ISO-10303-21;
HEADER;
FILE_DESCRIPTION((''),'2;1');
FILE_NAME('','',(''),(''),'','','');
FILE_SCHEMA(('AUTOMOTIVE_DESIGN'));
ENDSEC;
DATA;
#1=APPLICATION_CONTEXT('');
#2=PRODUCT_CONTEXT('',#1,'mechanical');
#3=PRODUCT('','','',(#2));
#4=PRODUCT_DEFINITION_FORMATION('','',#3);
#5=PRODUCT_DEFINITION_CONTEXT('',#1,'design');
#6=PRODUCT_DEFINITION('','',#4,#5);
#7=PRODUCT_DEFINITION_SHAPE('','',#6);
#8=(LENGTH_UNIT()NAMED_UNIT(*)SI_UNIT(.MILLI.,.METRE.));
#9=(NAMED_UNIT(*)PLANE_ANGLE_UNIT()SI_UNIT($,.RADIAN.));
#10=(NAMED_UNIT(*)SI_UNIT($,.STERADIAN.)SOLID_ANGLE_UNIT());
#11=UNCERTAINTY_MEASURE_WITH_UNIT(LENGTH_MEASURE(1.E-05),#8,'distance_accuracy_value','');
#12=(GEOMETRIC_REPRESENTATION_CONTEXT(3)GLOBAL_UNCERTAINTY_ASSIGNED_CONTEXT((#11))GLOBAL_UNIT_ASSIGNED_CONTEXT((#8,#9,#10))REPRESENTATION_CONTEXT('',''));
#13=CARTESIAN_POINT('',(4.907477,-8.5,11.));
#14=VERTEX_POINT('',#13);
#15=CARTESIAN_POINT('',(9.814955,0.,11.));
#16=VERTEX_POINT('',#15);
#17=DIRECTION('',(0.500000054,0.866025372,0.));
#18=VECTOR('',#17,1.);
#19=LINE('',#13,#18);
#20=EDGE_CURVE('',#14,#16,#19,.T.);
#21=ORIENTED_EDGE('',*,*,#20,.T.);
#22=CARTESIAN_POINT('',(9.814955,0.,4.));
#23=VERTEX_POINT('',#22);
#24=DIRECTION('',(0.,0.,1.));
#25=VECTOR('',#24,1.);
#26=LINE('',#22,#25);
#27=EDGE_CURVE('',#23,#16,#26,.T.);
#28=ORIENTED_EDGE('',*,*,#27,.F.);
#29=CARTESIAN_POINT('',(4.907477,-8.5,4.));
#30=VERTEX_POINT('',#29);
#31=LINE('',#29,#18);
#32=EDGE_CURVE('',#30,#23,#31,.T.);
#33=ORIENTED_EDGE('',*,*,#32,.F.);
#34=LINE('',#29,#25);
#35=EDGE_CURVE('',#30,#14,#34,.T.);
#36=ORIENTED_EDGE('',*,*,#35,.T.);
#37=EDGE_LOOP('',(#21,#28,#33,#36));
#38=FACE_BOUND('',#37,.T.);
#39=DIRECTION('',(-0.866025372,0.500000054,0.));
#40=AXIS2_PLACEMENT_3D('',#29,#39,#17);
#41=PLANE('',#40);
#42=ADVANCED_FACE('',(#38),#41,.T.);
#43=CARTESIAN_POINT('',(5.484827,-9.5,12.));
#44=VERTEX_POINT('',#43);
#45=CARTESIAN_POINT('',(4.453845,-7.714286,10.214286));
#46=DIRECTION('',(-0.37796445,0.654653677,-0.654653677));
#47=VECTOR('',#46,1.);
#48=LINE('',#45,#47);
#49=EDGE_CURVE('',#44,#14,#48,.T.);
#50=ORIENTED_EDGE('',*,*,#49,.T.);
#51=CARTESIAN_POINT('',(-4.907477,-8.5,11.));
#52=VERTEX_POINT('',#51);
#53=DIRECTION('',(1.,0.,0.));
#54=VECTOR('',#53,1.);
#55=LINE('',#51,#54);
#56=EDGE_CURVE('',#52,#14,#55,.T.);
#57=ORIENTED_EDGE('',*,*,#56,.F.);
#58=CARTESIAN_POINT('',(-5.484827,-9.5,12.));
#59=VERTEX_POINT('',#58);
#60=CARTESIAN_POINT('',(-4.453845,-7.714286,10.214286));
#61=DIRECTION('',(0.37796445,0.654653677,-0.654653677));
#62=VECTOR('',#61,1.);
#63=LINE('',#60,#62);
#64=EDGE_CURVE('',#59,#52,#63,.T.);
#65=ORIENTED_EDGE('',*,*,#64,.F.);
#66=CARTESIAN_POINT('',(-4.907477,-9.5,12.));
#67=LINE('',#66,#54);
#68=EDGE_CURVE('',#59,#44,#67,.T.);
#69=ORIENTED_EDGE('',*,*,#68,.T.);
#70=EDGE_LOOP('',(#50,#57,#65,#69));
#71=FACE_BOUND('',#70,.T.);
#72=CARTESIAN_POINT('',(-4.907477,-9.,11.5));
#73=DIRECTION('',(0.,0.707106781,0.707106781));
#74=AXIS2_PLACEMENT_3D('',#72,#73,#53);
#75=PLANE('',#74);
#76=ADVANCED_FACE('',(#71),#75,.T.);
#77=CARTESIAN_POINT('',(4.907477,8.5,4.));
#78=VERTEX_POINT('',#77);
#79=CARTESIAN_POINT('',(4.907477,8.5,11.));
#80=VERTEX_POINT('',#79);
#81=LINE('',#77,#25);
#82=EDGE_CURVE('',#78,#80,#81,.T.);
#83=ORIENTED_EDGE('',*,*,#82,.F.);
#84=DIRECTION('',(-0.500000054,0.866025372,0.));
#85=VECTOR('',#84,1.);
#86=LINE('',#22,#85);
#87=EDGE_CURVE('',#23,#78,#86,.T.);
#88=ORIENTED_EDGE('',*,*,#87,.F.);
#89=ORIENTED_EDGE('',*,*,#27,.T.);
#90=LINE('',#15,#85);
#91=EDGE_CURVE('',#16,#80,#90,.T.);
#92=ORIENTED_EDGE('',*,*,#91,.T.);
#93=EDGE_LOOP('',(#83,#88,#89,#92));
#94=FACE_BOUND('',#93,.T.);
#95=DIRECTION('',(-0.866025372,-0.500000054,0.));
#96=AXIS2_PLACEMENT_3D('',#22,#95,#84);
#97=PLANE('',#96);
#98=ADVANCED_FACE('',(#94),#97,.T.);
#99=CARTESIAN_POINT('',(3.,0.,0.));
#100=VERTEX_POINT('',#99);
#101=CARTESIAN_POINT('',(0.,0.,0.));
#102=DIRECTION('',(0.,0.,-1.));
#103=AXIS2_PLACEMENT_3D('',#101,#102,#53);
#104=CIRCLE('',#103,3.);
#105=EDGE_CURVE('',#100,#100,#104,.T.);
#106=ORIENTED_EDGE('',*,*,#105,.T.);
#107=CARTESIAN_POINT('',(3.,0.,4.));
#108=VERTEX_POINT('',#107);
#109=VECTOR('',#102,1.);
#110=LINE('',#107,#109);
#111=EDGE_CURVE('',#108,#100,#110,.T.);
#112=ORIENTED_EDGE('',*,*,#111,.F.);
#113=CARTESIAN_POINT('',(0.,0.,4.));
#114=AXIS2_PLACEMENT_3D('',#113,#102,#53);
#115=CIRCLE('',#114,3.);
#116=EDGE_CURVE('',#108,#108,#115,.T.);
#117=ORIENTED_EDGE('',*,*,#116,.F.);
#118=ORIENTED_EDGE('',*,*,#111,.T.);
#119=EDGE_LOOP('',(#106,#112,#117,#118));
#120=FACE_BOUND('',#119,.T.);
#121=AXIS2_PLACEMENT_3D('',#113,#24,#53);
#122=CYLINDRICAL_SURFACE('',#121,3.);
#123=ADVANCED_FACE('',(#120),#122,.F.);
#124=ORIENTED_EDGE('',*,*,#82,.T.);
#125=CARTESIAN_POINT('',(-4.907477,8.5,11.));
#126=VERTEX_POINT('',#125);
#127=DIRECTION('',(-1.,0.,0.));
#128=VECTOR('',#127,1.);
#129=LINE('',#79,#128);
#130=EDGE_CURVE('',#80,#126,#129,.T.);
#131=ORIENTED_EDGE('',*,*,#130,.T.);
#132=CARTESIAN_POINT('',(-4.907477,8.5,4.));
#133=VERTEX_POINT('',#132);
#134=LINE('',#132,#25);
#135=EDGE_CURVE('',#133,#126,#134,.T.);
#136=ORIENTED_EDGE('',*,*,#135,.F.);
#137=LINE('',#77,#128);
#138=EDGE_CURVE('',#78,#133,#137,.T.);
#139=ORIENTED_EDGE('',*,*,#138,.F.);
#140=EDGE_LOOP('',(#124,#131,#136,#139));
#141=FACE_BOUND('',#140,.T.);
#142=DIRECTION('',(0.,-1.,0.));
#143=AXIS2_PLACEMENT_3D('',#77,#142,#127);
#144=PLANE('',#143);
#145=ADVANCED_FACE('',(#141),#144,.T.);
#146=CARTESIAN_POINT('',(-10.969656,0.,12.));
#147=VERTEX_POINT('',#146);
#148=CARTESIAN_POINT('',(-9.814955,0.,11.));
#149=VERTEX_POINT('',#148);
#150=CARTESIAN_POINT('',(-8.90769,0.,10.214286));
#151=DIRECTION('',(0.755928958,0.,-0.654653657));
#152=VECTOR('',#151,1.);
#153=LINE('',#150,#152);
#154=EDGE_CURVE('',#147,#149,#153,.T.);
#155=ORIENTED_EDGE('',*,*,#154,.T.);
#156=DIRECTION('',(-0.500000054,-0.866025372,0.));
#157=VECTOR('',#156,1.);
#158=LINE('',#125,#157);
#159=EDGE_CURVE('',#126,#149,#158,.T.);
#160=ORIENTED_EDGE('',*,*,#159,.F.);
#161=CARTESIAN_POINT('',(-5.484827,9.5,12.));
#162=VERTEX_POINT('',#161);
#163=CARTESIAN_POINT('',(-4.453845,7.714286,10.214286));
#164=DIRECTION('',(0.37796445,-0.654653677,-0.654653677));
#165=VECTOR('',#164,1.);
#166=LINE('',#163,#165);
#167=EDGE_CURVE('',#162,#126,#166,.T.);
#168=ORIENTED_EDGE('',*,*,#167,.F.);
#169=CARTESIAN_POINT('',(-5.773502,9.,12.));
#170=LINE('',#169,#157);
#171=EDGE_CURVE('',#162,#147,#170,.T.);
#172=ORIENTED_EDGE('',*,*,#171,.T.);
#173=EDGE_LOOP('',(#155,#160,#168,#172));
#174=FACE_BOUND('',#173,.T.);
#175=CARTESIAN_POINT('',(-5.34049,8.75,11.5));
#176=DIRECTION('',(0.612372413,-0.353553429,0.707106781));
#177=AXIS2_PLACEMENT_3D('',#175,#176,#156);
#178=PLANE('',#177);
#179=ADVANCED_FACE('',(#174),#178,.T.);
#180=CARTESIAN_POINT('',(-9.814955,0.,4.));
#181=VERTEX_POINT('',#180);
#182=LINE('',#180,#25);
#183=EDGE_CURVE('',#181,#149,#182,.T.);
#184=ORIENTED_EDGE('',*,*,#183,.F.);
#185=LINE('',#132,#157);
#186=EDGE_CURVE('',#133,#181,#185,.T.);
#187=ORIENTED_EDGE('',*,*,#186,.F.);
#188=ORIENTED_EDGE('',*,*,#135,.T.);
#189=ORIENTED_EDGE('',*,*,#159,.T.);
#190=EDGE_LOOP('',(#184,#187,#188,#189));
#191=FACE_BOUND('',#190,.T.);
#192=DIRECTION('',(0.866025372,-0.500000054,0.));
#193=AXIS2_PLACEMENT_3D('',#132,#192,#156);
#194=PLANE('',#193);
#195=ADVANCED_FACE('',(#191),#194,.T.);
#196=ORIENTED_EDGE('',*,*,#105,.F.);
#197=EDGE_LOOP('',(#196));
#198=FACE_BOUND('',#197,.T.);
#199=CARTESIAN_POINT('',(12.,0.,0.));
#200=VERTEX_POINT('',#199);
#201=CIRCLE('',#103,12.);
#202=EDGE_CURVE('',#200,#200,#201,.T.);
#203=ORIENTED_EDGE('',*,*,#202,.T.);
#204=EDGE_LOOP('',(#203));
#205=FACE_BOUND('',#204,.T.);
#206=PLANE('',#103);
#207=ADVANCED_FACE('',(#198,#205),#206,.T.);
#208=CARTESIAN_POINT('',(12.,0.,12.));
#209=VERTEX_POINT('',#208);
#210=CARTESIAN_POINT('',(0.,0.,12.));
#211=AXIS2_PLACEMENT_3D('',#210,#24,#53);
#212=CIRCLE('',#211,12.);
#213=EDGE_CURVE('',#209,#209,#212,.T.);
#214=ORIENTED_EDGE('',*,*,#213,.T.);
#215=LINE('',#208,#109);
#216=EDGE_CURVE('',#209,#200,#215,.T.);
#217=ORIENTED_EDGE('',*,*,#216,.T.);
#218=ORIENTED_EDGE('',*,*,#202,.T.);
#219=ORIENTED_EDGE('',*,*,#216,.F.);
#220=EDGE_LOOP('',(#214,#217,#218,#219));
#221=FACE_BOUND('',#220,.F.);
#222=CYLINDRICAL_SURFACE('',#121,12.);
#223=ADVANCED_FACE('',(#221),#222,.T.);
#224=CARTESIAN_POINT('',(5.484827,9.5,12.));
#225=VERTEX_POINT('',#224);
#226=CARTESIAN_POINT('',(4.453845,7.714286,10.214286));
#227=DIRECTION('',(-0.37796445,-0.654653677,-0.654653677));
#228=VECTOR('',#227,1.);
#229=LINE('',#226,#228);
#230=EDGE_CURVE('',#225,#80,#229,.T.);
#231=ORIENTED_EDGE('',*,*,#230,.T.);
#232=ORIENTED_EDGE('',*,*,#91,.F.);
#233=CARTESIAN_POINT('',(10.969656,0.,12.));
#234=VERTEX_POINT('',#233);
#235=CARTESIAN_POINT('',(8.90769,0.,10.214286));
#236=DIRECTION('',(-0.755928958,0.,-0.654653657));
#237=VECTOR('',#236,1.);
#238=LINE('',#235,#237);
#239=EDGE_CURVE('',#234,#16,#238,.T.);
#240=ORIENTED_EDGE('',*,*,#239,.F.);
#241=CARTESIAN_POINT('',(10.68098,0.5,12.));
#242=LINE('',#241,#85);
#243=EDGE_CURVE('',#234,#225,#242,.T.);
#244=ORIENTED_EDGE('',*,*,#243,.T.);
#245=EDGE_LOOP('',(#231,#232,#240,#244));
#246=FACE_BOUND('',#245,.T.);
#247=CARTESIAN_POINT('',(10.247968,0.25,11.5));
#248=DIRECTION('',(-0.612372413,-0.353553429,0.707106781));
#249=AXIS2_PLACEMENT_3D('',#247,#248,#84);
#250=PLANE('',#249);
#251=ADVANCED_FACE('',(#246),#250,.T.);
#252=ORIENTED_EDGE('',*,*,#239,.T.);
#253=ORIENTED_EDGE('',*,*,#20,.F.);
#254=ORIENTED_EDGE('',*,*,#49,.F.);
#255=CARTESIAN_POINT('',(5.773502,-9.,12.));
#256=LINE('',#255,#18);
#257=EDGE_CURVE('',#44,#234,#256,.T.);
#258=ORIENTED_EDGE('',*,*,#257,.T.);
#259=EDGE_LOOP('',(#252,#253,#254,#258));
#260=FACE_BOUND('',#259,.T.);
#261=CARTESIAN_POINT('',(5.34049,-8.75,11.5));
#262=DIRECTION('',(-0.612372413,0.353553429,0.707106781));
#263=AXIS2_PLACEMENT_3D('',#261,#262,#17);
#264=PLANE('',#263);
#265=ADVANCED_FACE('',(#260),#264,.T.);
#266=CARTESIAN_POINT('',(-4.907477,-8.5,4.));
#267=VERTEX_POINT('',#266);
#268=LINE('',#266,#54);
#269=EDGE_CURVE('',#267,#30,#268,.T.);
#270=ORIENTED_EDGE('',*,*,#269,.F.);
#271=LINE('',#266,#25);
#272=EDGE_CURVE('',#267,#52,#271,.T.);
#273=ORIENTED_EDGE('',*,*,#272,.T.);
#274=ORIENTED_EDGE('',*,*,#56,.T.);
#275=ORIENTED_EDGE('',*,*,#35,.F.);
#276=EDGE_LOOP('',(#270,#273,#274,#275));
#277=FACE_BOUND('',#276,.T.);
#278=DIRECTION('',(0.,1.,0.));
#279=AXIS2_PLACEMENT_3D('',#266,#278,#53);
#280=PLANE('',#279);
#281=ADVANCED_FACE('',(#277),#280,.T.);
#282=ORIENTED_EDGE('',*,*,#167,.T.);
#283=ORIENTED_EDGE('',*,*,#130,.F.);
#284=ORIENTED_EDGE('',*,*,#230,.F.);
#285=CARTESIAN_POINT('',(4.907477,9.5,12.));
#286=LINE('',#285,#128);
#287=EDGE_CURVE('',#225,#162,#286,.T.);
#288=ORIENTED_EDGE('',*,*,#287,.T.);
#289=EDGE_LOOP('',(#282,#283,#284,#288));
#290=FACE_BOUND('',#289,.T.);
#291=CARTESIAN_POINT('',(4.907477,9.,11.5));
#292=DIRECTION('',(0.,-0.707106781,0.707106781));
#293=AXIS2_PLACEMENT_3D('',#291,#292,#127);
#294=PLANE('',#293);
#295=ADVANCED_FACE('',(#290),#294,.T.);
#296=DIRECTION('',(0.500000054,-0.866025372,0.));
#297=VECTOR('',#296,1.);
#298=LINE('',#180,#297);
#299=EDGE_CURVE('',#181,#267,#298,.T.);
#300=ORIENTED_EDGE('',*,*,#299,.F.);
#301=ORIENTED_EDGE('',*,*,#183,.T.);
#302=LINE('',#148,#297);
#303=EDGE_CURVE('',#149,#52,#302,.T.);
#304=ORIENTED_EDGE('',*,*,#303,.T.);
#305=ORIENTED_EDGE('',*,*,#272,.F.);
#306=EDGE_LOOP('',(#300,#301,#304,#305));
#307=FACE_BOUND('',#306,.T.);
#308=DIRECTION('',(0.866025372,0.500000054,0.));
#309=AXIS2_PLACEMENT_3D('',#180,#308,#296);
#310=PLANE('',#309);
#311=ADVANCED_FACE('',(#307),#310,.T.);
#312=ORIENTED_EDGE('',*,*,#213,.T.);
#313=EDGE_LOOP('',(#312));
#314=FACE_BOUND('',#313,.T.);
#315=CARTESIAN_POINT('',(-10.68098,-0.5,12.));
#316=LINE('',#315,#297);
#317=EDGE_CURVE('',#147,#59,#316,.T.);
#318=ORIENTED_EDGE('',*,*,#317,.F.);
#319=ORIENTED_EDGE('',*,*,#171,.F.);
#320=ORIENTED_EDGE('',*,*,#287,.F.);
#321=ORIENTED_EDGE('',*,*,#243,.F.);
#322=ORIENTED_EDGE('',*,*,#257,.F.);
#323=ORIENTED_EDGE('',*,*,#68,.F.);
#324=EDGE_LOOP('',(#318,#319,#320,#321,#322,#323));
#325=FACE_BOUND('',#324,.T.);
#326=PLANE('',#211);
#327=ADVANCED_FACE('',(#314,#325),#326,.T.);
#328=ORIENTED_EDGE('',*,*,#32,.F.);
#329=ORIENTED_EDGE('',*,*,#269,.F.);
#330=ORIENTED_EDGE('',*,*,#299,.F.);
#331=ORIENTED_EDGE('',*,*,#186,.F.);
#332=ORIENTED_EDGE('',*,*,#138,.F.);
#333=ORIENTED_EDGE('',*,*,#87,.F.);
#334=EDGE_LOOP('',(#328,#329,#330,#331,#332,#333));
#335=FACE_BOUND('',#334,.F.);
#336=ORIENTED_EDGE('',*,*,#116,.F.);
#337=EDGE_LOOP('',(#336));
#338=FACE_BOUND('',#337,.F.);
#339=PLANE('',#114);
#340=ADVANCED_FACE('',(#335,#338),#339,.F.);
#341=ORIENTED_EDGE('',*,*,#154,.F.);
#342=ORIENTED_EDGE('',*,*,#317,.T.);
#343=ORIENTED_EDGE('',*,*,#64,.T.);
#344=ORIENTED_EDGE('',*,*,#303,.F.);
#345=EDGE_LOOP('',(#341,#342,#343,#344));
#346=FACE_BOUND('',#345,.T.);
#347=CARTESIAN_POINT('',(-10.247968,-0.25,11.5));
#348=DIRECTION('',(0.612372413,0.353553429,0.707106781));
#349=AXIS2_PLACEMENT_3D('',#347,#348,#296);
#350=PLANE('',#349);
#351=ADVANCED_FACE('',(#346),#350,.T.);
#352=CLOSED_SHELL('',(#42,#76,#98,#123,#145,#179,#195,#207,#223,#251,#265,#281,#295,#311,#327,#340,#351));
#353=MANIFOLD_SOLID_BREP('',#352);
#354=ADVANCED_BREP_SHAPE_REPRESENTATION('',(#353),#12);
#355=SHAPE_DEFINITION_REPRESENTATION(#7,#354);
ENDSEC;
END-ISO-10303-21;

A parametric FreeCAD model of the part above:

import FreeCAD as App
import Part
import Sketcher

V = App.Vector
Q = App.Units.Quantity


def edges_at(feature, points):
    """Names of the edges that pass closest to the given points."""
    edges = feature.Shape.Edges
    near = lambda p: min(range(len(edges)), key=lambda i: edges[i].distToShape(Part.Vertex(*p))[0])
    return sorted({f"Edge{near(p) + 1}" for p in points})

doc = App.newDocument("Part")
body = doc.addObject("PartDesign::Body", "Body")

sketch1 = body.newObject("Sketcher::SketchObject", "Sketch")
sketch1.AttachmentSupport = (doc.getObject("XY_Plane"), [""])
sketch1.MapMode = "FlatFace"
sketch1.AttachmentOffset = App.Placement(V(0, 0, 4), App.Rotation())
sketch1.addGeometry([
    Part.Circle(V(0, 0, 0), V(0, 0, 1), 12),
    Part.LineSegment(V(10, 0, 0), V(5, -8, 0)),
    Part.LineSegment(V(5, -8, 0), V(-5, -8, 0)),
    Part.LineSegment(V(-5, -8, 0), V(-10, 0, 0)),
    Part.LineSegment(V(-10, 0, 0), V(-5, 8, 0)),
    Part.LineSegment(V(-5, 8, 0), V(5, 8, 0)),
    Part.LineSegment(V(5, 8, 0), V(10, 0, 0)),
], False)
sketch1.addConstraint([
    Sketcher.Constraint("Coincident", 1, 2, 2, 1),
    Sketcher.Constraint("Coincident", 2, 2, 3, 1),
    Sketcher.Constraint("Coincident", 3, 2, 4, 1),
    Sketcher.Constraint("Coincident", 4, 2, 5, 1),
    Sketcher.Constraint("Coincident", 5, 2, 6, 1),
    Sketcher.Constraint("Coincident", 6, 2, 1, 1),
    Sketcher.Constraint("Horizontal", 2),
    Sketcher.Constraint("Horizontal", 5),
    Sketcher.Constraint("Coincident", 0, 3, -1, 1),
    Sketcher.Constraint("Symmetric", 1, 2, 4, 2, -1, 1),
    Sketcher.Constraint("Symmetric", 3, 2, 6, 2, -1, 1),
    Sketcher.Constraint("PointOnObject", 3, 2, -1),
    Sketcher.Constraint("Parallel", 3, 6),
    Sketcher.Constraint("Vertical", 2, 2, 4, 2),
    Sketcher.Constraint("Diameter", 0, Q("24 mm")),
    Sketcher.Constraint("Angle", 1, Q("-120.000004 deg")),
    Sketcher.Constraint("DistanceY", 2, 2, 4, 2, Q("17 mm")),
    Sketcher.Constraint("DistanceX", 2, 2, 2, 1, Q("9.814954 mm")),
])
pad1 = body.newObject("PartDesign::Pad", "Pad")
pad1.Profile = sketch1
pad1.Length = 8

sketch2 = body.newObject("Sketcher::SketchObject", "Sketch001")
sketch2.AttachmentSupport = (doc.getObject("XY_Plane"), [""])
sketch2.MapMode = "FlatFace"
sketch2.AttachmentOffset = App.Placement(V(0, 0, 4), App.Rotation())
sketch2.addGeometry([
    Part.Circle(V(0, 0, 0), V(0, 0, 1), 12),
    Part.Circle(V(0, 0, 0), V(0, 0, 1), 3),
], False)
sketch2.addConstraint([
    Sketcher.Constraint("Coincident", 0, 3, -1, 1),
    Sketcher.Constraint("Coincident", 1, 3, -1, 1),
    Sketcher.Constraint("Diameter", 0, Q("24 mm")),
    Sketcher.Constraint("Diameter", 1, Q("6 mm")),
])
pad2 = body.newObject("PartDesign::Pad", "Pad001")
pad2.Profile = sketch2
pad2.Length = 4
pad2.Reversed = True
doc.recompute()

chamfer = body.newObject("PartDesign::Chamfer", "Chamfer")
chamfer.Base = (pad2, edges_at(pad2, [
    (-7.361, -4.25, 12),
    (-7.361, 4.25, 12),
    (0, 8.5, 12),
    (7.361, 4.25, 12),
    (0, -8.5, 12),
    (7.361, -4.25, 12),
]))
chamfer.Size = 1

doc.recompute()
